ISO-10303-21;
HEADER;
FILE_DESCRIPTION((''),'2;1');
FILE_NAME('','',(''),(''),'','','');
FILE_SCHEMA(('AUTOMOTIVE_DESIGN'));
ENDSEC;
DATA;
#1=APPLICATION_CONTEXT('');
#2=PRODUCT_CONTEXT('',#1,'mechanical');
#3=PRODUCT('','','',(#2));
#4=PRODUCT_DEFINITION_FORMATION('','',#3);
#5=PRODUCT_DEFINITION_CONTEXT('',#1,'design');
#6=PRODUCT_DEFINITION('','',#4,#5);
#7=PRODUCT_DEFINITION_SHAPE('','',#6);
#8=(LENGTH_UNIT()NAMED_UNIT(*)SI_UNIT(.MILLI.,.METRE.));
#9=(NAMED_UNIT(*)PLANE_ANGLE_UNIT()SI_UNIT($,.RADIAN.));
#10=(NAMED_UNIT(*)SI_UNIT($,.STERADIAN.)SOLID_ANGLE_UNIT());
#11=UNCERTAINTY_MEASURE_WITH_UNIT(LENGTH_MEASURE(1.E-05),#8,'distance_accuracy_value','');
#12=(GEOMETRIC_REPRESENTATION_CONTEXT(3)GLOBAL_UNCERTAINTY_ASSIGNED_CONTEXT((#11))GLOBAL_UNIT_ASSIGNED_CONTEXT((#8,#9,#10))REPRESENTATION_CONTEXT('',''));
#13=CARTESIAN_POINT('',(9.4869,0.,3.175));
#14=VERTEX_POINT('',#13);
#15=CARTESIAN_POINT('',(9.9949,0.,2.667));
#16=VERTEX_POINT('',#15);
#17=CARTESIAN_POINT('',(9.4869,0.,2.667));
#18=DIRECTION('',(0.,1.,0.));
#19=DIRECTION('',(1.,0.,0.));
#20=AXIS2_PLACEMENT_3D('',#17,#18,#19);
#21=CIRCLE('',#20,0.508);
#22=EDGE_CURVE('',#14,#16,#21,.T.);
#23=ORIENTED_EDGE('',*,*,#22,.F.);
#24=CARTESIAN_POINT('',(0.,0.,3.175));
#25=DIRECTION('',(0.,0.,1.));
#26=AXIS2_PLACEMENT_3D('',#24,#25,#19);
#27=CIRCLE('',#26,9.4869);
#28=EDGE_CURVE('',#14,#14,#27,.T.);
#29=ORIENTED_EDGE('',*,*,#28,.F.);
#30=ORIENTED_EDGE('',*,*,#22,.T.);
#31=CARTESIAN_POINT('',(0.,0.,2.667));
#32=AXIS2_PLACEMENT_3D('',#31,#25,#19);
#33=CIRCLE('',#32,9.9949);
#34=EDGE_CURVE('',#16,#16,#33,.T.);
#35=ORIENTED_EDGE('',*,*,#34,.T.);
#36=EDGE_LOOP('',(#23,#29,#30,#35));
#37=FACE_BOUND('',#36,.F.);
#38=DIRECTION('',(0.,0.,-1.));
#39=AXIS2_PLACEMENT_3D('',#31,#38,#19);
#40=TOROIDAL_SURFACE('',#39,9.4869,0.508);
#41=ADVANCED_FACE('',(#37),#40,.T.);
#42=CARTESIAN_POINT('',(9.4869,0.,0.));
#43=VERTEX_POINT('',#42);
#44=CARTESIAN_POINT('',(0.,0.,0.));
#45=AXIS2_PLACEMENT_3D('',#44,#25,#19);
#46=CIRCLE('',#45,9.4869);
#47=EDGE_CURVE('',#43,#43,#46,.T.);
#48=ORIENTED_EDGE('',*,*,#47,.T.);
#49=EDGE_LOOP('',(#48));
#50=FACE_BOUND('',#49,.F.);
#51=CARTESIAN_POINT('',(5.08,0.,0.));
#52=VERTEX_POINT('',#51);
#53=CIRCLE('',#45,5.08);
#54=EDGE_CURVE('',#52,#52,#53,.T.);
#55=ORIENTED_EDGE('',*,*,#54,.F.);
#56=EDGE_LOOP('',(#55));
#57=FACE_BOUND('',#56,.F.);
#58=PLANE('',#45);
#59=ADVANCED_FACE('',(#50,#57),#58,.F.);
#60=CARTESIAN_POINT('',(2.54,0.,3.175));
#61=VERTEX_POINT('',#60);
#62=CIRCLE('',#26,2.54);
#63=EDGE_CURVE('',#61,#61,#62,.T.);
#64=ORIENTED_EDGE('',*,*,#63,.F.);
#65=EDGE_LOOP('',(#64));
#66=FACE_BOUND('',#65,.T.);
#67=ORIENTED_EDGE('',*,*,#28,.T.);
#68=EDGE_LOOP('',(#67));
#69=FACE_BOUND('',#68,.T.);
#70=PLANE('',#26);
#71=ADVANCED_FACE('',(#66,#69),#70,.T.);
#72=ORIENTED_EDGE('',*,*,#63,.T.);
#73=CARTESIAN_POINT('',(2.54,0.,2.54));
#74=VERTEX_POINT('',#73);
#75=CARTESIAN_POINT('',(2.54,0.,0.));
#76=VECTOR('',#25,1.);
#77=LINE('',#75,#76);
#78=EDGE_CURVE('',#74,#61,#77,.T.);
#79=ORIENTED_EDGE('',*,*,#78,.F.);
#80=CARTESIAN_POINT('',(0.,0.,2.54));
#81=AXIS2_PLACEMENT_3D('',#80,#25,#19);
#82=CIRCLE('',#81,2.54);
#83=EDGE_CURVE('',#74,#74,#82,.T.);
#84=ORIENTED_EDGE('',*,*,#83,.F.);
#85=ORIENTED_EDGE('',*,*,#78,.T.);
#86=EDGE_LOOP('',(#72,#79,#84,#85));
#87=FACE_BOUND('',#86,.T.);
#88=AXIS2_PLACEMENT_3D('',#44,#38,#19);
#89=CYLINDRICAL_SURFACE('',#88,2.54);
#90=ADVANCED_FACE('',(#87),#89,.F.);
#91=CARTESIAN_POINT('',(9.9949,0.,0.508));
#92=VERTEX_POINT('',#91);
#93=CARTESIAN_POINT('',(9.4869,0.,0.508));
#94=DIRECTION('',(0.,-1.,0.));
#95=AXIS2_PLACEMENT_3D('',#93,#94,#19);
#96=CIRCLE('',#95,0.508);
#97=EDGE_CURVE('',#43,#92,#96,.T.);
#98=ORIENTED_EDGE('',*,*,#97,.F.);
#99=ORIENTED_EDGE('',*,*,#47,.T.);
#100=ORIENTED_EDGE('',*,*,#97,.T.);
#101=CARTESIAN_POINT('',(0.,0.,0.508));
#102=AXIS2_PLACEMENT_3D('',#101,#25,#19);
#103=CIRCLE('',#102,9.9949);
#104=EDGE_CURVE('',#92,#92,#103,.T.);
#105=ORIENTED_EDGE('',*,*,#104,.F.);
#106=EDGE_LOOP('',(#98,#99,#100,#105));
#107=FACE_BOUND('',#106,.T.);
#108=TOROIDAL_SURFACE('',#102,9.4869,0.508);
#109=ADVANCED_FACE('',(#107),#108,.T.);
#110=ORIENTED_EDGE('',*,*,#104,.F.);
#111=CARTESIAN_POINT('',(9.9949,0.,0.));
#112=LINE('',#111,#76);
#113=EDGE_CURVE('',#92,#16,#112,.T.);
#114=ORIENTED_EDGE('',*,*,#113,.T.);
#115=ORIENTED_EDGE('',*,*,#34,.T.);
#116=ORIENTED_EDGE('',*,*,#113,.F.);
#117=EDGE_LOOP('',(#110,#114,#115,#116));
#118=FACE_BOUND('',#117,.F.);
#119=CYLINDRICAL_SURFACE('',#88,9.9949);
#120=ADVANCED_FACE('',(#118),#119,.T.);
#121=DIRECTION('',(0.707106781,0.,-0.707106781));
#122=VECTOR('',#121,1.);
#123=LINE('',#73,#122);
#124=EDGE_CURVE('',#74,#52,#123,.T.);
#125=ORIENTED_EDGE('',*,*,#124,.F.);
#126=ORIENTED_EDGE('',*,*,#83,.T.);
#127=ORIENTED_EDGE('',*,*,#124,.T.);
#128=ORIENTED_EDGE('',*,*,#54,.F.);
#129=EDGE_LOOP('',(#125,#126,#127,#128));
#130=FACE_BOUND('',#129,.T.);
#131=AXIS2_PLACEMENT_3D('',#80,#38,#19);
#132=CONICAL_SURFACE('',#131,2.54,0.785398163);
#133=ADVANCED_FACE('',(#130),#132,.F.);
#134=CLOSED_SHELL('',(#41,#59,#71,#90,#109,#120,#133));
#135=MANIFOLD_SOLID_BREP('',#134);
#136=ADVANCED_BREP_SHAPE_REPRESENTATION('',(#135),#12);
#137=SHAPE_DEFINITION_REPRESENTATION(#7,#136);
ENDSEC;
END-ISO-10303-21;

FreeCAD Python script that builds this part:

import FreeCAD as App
import Part
import Sketcher
Q = App.Units.Quantity


def edges_at(feature, points):
    """Names of the edges that pass closest to the given points."""
    edges = feature.Shape.Edges
    near = lambda p: min(range(len(edges)), key=lambda i: edges[i].distToShape(Part.Vertex(*p))[0])
    return sorted({f"Edge{near(p) + 1}" for p in points})

doc = App.newDocument("Part")
params = doc.addObject("Spreadsheet::Sheet", "Params")
for row, (alias, value) in enumerate([
    ("sketch1_diameter", "0.2 in"),
    ("sketch1_diameter2", "0.787 in"),
    ("pad1_length", "0.125 in"),
    ("chamfer_size", "0.1 in"),
    ("fillet_radius", "0.02 in"),
], start=1):
    params.set(f"A{row}", alias)
    params.set(f"B{row}", "=" + value)
    params.setAlias(f"B{row}", alias)

body = doc.addObject("PartDesign::Body", "Body")

sketch1 = body.newObject("Sketcher::SketchObject", "Sketch")
sketch1.AttachmentSupport = (doc.getObject("XY_Plane"), [""])
sketch1.MapMode = "FlatFace"
sketch1.addGeometry([
    Part.Circle(App.Vector(0, 0, 0), App.Vector(0, 0, 1), 10),
    Part.Circle(App.Vector(0, 0, 0), App.Vector(0, 0, 1), 2.5),
], False)
sketch1.addConstraint([
    Sketcher.Constraint("Coincident", 0, 3, -1, 1),
    Sketcher.Constraint("Coincident", 1, 3, -1, 1),
    Sketcher.Constraint("Diameter", 1, Q("0.2 in")),
    Sketcher.Constraint("Diameter", 0, Q("0.787 in")),
])
sketch1.setExpression("Constraints[2]", "Params.sketch1_diameter")
sketch1.setExpression("Constraints[3]", "Params.sketch1_diameter2")
pad1 = body.newObject("PartDesign::Pad", "Pad")
pad1.Profile = sketch1
pad1.setExpression("Length", "Params.pad1_length")
doc.recompute()

chamfer = body.newObject("PartDesign::Chamfer", "Chamfer")
chamfer.Base = (pad1, edges_at(pad1, [(-2.54, 0, 0)]))
chamfer.setExpression("Size", "Params.chamfer_size")
doc.recompute()

fillet = body.newObject("PartDesign::Fillet", "Fillet")
fillet.Base = (chamfer, edges_at(chamfer, [(-9.995, 0, 3.175), (-9.995, 0, 0)]))
fillet.setExpression("Radius", "Params.fillet_radius")

doc.recompute()
